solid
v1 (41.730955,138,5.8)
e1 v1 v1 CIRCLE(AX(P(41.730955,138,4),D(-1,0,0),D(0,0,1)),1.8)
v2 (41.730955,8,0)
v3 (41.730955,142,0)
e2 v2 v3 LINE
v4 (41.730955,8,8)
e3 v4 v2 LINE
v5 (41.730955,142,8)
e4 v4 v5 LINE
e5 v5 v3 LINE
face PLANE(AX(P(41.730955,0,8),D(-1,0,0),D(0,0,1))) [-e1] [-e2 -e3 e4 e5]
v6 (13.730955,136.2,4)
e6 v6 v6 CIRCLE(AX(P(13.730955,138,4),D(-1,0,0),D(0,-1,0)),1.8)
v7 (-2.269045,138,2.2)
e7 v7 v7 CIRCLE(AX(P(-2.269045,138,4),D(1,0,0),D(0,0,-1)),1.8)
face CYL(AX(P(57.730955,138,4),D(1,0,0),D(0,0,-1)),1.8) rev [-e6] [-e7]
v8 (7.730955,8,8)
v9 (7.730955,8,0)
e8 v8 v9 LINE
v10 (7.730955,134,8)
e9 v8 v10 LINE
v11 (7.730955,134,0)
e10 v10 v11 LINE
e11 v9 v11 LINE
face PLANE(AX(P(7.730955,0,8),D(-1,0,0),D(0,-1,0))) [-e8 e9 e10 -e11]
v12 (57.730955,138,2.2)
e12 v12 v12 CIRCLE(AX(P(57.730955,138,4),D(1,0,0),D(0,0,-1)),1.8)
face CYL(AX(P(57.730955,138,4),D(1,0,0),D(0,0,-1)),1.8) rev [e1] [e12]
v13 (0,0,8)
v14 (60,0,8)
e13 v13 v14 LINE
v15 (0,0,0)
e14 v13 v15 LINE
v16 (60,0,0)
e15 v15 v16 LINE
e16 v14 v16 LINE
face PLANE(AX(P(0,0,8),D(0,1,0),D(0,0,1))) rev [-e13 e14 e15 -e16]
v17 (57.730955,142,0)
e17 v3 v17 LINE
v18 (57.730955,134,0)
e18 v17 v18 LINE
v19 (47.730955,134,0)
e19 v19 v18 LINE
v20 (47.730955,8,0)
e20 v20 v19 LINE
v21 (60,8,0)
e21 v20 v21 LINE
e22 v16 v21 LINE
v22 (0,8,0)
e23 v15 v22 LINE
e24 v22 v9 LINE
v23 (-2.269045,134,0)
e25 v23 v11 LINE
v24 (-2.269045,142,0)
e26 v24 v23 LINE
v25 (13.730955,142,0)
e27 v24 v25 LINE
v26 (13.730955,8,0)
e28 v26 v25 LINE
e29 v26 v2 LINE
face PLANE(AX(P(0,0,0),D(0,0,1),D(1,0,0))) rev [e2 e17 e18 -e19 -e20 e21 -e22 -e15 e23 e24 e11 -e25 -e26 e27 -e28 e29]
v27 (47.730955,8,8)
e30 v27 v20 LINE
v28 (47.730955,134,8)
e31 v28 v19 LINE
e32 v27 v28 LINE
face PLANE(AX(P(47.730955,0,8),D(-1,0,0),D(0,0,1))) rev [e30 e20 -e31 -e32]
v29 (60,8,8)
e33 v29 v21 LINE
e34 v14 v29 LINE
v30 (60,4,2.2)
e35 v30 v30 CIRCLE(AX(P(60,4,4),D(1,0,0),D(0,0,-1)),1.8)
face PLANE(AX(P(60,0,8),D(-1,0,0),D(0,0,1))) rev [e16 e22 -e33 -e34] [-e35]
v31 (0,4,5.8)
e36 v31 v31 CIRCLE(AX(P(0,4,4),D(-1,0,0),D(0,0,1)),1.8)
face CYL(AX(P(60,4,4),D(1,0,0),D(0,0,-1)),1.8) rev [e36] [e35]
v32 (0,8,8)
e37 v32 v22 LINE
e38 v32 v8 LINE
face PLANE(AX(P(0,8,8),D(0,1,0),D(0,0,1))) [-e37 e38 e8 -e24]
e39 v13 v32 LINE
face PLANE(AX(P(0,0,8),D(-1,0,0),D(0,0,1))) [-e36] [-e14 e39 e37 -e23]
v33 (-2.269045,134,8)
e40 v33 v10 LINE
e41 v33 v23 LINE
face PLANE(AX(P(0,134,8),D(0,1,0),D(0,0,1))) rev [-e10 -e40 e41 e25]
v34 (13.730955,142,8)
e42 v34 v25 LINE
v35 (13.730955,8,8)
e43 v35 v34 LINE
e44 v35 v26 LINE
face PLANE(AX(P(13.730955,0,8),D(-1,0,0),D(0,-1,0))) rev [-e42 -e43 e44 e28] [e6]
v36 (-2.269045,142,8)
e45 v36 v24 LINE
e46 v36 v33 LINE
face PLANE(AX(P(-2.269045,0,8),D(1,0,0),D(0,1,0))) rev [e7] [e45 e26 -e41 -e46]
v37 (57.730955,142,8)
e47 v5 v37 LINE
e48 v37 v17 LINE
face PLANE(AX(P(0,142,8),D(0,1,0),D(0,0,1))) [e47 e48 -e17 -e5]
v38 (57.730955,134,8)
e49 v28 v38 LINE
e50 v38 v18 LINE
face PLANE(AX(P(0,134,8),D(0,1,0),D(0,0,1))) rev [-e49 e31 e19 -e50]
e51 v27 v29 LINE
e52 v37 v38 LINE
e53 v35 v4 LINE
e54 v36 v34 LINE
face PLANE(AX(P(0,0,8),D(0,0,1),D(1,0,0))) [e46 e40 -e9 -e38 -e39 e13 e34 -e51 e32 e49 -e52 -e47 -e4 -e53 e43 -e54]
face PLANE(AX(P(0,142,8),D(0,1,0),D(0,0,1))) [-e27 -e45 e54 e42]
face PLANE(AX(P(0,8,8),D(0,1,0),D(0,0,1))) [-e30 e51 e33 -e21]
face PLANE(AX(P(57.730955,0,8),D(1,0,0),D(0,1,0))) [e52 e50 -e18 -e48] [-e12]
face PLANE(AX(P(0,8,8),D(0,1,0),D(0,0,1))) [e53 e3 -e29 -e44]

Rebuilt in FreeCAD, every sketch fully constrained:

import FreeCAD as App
import Part
import Sketcher


def add_polygon(sketch, points):
    """Adds a closed chain of lines whose ends are joined by coincident constraints."""
    first, n = sketch.GeometryCount, len(points)
    for a, b in zip(points, points[1:] + points[:1]):
        sketch.addGeometry(Part.LineSegment(App.Vector(*a, 0), App.Vector(*b, 0)), False)
    for i in range(n):
        sketch.addConstraint(Sketcher.Constraint("Coincident", first + i, 2, first + (i + 1) % n, 1))

doc = App.newDocument("Part")
body = doc.addObject("PartDesign::Body", "Body")

# Sketch on XY plane
sketch1 = body.newObject("Sketcher::SketchObject", "Sketch")
sketch1.AttachmentSupport = (doc.getObject("XY_Plane"), [""])
sketch1.MapMode = "FlatFace"
add_polygon(sketch1, [(14, 142), (-2, 142), (-2, 134), (8, 134), (8, 8), (0, 8), (0, 0), (60, 0), (60, 8), (48, 8), (48, 134), (58, 134), (58, 142), (42, 142), (42, 8), (14, 8)])  # lines 0-15
sketch1.addConstraint([
    Sketcher.Constraint("Horizontal", 0),
    Sketcher.Constraint("Vertical", 1),
    Sketcher.Constraint("Horizontal", 2),
    Sketcher.Constraint("Vertical", 3),
    Sketcher.Constraint("Horizontal", 4),
    Sketcher.Constraint("Vertical", 5),
    Sketcher.Constraint("Horizontal", 6),
    Sketcher.Constraint("Vertical", 7),
    Sketcher.Constraint("Horizontal", 8),
    Sketcher.Constraint("Vertical", 9),
    Sketcher.Constraint("Horizontal", 10),
    Sketcher.Constraint("Vertical", 11),
    Sketcher.Constraint("Horizontal", 12),
    Sketcher.Constraint("Vertical", 13),
    Sketcher.Constraint("Horizontal", 14),
    Sketcher.Constraint("Vertical", 15),
    Sketcher.Constraint("Coincident", 5, 2, -1, 1),
    Sketcher.Constraint("Horizontal", 4, 2, 7, 2),
    Sketcher.Constraint("Horizontal", 2, 2, 9, 2),
    Sketcher.Constraint("Horizontal", 0, 2, 11, 2),
    Sketcher.Constraint("Horizontal", 8, 2, 13, 2),
    Sketcher.Constraint("Equal", 2, 10),
    Sketcher.Constraint("Equal", 0, 12),
    Sketcher.Constraint("Equal", 1, 5),
    Sketcher.Constraint("DistanceX", 0, 2, 0, 1, 16.0),
    Sketcher.Constraint("DistanceX", 2, 1, 2, 2, 10.0),
    Sketcher.Constraint("DistanceX", 6, 1, 6, 2, 60.0),
    Sketcher.Constraint("DistanceX", 14, 2, 14, 1, 28.0),
    Sketcher.Constraint("DistanceY", 1, 2, 1, 1, 8.0),
    Sketcher.Constraint("DistanceY", 3, 2, 3, 1, 126.0),
    Sketcher.Constraint("DistanceX", 4, 2, 4, 1, 7.730955),
])
pad1 = body.newObject("PartDesign::Pad", "Pad")
pad1.Profile = sketch1
pad1.Length = 8

# Sketch on YZ plane
sketch2 = body.newObject("Sketcher::SketchObject", "Sketch001")
sketch2.AttachmentSupport = (doc.getObject("YZ_Plane"), [""])
sketch2.MapMode = "FlatFace"
sketch2.AttachmentOffset = App.Placement(App.Vector(0, 0, 57.730955), App.Rotation())
sketch2.addGeometry(Part.Circle(App.Vector(138, 4, 0), App.Vector(0, 0, 1), 1.8), False)
sketch2.addConstraint([
    Sketcher.Constraint("Diameter", 0, 3.6),
    Sketcher.Constraint("DistanceX", -1, 1, 0, 3, 138.0),
    Sketcher.Constraint("DistanceY", -1, 1, 0, 3, 4.0),
])
doc.recompute()
hole = body.newObject("PartDesign::Hole", "Hole")
hole.Profile = sketch2
hole.ThreadType = "None"
hole.Diameter = 3.6
hole.DepthType = "ThroughAll"

# Sketch on YZ plane
sketch3 = body.newObject("Sketcher::SketchObject", "Sketch002")
sketch3.AttachmentSupport = (doc.getObject("YZ_Plane"), [""])
sketch3.MapMode = "FlatFace"
sketch3.AttachmentOffset = App.Placement(App.Vector(0, 0, 60), App.Rotation())
sketch3.addGeometry(Part.Circle(App.Vector(4, 4, 0), App.Vector(0, 0, 1), 1.8), False)
sketch3.addConstraint([
    Sketcher.Constraint("Diameter", 0, 3.6),
    Sketcher.Constraint("DistanceX", -1, 1, 0, 3, 4.0),
    Sketcher.Constraint("DistanceY", -1, 1, 0, 3, 4.0),
])
doc.recompute()
hole2 = body.newObject("PartDesign::Hole", "Hole001")
hole2.Profile = sketch3
hole2.ThreadType = "None"
hole2.Diameter = 3.6
hole2.DepthType = "ThroughAll"

doc.recompute()
